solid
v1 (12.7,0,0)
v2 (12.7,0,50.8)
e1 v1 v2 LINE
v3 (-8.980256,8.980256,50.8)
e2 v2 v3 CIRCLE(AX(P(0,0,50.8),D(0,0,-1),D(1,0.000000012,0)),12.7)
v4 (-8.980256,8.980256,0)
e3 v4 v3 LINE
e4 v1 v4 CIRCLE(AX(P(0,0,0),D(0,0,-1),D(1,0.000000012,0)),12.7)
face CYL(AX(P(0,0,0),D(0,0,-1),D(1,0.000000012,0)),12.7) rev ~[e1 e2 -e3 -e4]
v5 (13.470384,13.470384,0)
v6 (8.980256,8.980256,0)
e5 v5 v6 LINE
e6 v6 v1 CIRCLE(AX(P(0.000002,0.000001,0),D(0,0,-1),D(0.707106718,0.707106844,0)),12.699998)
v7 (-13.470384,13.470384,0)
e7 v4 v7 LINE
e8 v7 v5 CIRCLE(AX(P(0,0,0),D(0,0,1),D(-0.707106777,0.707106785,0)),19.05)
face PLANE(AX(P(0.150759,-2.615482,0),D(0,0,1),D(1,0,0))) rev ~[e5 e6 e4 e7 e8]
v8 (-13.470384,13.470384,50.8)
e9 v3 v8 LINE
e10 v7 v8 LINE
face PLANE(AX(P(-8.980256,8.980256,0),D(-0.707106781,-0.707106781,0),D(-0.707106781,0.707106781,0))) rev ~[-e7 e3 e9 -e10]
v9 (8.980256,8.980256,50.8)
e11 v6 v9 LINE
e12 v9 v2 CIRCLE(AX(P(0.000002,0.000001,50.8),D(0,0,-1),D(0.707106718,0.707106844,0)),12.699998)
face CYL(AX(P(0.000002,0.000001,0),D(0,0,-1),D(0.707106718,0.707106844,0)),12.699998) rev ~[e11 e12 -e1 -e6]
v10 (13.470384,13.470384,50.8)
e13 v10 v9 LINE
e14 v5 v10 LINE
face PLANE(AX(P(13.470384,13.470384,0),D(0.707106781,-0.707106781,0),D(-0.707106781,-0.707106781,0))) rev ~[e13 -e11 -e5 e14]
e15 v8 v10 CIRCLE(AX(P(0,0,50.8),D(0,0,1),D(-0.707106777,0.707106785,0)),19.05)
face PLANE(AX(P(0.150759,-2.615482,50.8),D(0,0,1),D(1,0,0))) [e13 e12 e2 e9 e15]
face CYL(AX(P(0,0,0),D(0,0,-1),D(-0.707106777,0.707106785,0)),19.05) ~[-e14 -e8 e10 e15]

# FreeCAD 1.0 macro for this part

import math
import FreeCAD as App
import Part
import Sketcher

V = App.Vector
Q = App.Units.Quantity

doc = App.newDocument("Part")
params = doc.addObject("Spreadsheet::Sheet", "Params")
for row, (alias, value) in enumerate([
    ("sketch1_radius", "0.4999999 in"),
    ("sketch1_radius2", "0.75 in"),
    ("pad1_length", "2 in"),
], start=1):
    params.set(f"A{row}", alias)
    params.set(f"B{row}", "=" + value)
    params.setAlias(f"B{row}", alias)

body = doc.addObject("PartDesign::Body", "Body")

# Sketch on XY plane
sketch1 = body.newObject("Sketcher::SketchObject", "Sketch")
sketch1.AttachmentSupport = (doc.getObject("XY_Plane"), [""])
sketch1.MapMode = "FlatFace"
sketch1.addGeometry(Part.ArcOfCircle(Part.Circle(V(0, 0, 0), V(0, 0, 1), 13), math.radians(0), math.radians(45)), False)
sketch1.addGeometry(Part.ArcOfCircle(Part.Circle(V(0, 0, 0), V(0, 0, 1), 13), math.radians(135), math.radians(360)), False)
sketch1.addGeometry(Part.LineSegment(V(-9, 9, 0), V(-13, 13, 0)), False)
sketch1.addGeometry(Part.ArcOfCircle(Part.Circle(V(0, 0, 0), V(0, 0, 1), 19), math.radians(135), math.radians(405)), False)
sketch1.addGeometry(Part.LineSegment(V(13, 13, 0), V(9, 9, 0)), False)
sketch1.addConstraint(Sketcher.Constraint("Tangent", 0, 1, 1, 2))
sketch1.addConstraint(Sketcher.Constraint("Coincident", 1, 1, 2, 1))
sketch1.addConstraint(Sketcher.Constraint("Coincident", 2, 2, 3, 1))
sketch1.addConstraint(Sketcher.Constraint("Coincident", 3, 2, 4, 1))
sketch1.addConstraint(Sketcher.Constraint("Coincident", 4, 2, 0, 2))
sketch1.addConstraint(Sketcher.Constraint("Coincident", 0, 3, -1, 1))
sketch1.addConstraint(Sketcher.Constraint("Coincident", 3, 3, -1, 1))
sketch1.addConstraint(Sketcher.Constraint("Symmetric", 1, 1, 4, 2, -2))
sketch1.addConstraint(Sketcher.Constraint("PointOnObject", 0, 1, -1))
sketch1.addConstraint(Sketcher.Constraint("Perpendicular", 2, 4))
sketch1.addConstraint(Sketcher.Constraint("Horizontal", 2, 2, 3, 2))
sketch1.addConstraint(Sketcher.Constraint("Radius", 0, Q("0.4999999 in")))
sketch1.addConstraint(Sketcher.Constraint("Radius", 3, Q("0.75 in")))
sketch1.addConstraint(Sketcher.Constraint("DistanceX", 1, 1, 0, 3, Q("8.980258 mm")))
sketch1.setExpression("Constraints[11]", "Params.sketch1_radius")
sketch1.setExpression("Constraints[12]", "Params.sketch1_radius2")
pad1 = body.newObject("PartDesign::Pad", "Pad")
pad1.Profile = sketch1
pad1.setExpression("Length", "Params.pad1_length")

doc.recompute()
